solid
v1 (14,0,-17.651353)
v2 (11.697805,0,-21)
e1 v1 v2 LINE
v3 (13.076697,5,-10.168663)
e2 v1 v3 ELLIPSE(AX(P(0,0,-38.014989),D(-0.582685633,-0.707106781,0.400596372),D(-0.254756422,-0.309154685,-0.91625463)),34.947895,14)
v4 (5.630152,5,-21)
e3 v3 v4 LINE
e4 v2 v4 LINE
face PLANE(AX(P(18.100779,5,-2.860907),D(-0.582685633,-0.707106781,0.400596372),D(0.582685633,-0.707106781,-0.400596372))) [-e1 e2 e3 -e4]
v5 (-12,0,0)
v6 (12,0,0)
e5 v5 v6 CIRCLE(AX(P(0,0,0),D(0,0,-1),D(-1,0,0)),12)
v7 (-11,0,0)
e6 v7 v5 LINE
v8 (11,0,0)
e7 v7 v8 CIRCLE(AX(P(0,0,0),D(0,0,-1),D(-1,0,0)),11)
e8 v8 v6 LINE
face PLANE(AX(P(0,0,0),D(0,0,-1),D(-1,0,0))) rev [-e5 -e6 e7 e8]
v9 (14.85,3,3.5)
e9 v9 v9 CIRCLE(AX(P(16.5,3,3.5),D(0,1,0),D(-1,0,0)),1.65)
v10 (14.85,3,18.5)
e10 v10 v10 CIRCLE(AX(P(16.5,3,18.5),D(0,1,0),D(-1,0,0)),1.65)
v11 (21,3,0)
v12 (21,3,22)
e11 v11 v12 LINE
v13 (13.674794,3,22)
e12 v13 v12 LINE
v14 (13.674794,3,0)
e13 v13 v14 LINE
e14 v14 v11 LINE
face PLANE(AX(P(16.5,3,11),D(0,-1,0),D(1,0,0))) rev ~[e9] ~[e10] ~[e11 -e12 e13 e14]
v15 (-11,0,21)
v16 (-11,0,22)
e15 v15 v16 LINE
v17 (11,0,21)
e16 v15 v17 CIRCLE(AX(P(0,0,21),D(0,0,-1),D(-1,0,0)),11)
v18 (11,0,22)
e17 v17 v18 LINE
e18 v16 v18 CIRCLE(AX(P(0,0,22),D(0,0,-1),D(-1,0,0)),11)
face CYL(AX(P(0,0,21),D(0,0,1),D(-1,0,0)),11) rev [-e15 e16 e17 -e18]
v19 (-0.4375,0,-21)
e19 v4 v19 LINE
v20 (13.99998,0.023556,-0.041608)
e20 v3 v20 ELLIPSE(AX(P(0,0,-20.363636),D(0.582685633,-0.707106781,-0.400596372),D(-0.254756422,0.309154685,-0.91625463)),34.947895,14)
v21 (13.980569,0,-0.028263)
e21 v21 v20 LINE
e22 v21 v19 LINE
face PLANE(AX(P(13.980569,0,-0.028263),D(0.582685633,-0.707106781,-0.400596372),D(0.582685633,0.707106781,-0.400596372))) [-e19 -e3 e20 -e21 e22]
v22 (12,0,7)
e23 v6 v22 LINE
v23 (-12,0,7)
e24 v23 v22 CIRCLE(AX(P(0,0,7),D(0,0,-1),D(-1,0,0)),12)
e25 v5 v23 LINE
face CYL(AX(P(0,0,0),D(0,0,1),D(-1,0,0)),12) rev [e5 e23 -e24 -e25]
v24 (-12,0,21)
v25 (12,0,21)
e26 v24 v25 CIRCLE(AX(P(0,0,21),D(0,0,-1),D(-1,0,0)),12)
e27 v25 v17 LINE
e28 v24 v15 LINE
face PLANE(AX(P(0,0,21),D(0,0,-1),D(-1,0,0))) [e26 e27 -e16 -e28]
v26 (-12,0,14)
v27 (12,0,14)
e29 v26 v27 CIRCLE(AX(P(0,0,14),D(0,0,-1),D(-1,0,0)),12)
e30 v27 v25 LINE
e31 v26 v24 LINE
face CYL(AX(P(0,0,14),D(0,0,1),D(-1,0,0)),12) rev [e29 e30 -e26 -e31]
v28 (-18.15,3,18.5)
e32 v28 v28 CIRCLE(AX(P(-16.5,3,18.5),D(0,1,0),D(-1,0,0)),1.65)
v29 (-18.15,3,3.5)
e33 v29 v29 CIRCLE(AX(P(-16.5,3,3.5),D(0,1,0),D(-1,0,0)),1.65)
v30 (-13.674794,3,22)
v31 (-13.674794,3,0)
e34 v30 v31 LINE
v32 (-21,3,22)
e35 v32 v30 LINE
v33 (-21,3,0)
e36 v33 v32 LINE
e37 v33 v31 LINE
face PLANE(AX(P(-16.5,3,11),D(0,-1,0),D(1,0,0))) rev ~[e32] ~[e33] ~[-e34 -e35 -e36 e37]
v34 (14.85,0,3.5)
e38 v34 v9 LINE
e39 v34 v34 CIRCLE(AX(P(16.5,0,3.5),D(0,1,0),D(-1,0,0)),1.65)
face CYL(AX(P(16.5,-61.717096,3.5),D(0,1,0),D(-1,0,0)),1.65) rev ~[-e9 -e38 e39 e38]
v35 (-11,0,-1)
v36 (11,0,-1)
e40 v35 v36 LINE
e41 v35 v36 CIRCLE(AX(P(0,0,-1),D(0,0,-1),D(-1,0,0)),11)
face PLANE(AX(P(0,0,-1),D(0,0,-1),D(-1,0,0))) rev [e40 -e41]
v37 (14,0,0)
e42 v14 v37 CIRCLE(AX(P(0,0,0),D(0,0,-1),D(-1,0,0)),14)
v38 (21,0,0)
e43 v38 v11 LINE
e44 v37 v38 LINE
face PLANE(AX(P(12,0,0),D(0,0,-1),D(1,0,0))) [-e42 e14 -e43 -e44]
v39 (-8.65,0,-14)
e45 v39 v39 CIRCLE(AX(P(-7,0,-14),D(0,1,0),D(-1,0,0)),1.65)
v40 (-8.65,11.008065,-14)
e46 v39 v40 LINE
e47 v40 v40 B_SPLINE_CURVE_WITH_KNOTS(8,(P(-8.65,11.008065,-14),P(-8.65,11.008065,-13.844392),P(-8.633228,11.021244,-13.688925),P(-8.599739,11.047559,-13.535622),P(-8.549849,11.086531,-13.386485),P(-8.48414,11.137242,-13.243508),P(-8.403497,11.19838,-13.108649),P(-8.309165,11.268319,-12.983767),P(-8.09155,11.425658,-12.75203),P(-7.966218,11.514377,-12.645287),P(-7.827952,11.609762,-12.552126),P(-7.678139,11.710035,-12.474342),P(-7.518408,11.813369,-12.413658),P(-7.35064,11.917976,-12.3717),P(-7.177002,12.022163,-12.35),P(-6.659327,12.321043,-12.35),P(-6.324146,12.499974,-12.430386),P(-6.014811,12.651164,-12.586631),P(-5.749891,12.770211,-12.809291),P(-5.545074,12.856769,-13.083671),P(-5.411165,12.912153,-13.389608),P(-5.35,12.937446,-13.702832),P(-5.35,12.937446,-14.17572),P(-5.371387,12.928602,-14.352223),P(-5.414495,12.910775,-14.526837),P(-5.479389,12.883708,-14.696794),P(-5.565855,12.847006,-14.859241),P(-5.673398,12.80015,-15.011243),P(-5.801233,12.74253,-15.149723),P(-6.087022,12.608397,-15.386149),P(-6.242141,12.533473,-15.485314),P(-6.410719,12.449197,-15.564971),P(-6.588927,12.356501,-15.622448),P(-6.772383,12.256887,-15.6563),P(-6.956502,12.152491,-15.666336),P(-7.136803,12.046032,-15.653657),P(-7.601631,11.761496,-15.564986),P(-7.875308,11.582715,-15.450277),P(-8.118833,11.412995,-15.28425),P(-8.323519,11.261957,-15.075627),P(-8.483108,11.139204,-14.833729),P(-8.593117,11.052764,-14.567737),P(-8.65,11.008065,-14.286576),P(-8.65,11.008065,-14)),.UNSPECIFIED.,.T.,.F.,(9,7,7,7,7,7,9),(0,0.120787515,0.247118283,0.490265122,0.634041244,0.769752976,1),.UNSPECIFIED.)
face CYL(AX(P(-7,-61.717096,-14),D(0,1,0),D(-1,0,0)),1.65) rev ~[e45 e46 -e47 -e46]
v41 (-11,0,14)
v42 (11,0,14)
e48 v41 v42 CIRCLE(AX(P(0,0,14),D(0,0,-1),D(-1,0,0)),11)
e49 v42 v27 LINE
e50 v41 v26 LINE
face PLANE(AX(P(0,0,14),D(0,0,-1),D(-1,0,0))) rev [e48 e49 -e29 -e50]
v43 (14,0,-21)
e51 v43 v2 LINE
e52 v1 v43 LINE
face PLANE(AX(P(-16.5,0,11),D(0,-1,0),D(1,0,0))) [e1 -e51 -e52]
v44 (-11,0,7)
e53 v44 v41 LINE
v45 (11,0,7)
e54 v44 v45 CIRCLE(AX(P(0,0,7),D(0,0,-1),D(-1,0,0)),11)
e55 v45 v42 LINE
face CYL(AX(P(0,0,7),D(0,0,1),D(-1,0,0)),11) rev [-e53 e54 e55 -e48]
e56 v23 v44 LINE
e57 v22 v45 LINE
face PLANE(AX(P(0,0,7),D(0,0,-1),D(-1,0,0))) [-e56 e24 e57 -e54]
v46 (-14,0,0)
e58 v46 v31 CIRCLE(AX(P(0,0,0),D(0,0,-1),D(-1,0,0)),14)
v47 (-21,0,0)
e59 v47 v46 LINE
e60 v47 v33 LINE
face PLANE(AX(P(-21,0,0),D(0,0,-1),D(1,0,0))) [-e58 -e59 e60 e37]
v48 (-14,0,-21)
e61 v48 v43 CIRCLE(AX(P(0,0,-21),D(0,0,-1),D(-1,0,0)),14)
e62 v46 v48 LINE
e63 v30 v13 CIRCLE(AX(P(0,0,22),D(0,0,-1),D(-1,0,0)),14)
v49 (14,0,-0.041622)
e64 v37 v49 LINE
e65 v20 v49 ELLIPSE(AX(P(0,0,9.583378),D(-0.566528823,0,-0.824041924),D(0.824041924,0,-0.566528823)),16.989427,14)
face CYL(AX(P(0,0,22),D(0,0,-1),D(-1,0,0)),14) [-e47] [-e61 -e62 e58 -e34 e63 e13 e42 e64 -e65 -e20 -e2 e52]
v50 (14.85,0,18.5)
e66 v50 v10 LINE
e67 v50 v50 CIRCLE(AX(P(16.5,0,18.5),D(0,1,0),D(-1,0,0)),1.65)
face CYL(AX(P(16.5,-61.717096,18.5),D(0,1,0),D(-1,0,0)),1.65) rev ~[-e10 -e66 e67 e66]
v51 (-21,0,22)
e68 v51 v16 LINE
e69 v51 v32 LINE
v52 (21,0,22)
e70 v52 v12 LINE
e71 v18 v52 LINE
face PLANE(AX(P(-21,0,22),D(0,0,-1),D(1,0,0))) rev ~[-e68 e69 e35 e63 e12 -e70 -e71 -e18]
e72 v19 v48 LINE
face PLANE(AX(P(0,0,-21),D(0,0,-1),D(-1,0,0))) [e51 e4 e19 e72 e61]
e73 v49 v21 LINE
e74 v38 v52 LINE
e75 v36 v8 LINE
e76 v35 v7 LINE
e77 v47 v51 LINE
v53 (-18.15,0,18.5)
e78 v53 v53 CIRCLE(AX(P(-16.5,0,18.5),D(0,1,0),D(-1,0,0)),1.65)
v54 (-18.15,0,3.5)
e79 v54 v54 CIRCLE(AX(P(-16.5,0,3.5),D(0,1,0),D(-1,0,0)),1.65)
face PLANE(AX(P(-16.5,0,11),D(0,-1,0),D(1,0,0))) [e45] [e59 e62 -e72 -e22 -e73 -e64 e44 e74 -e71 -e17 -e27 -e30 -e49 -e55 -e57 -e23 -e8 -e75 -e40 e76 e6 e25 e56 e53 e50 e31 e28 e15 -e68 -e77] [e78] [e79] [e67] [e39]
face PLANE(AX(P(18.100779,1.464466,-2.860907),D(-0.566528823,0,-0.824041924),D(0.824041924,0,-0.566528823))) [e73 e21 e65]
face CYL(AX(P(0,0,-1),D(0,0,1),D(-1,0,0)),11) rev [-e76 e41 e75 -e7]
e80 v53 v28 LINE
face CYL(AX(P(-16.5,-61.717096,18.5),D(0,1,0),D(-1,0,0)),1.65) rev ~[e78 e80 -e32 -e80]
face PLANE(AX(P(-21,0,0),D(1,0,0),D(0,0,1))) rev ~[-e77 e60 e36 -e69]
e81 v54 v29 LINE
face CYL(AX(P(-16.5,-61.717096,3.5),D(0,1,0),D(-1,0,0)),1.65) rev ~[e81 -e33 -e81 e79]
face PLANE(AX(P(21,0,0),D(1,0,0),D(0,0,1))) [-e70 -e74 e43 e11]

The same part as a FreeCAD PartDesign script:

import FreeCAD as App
import Part
import Sketcher

doc = App.newDocument("Part")
body = doc.addObject("PartDesign::Body", "Body")

# Sketch on XZ plane
sketch1 = body.newObject("Sketcher::SketchObject", "Sketch")
sketch1.AttachmentSupport = (doc.getObject("XZ_Plane"), [""])
sketch1.MapMode = "FlatFace"
sketch1.addGeometry([
    Part.LineSegment(App.Vector(-12, 21, 0), App.Vector(-11, 21, 0)),  # 0
    Part.LineSegment(App.Vector(-11, 21, 0), App.Vector(-11, 22, 0)),  # 1
    Part.LineSegment(App.Vector(-11, 22, 0), App.Vector(-14, 22, 0)),  # 2
    Part.LineSegment(App.Vector(-14, 22, 0), App.Vector(-14, -21, 0)),  # 3
    Part.LineSegment(App.Vector(-14, -21, 0), App.Vector(0, -21, 0)),  # 4
    Part.LineSegment(App.Vector(0, -21, 0), App.Vector(0, -1, 0)),  # 5
    Part.LineSegment(App.Vector(0, -1, 0), App.Vector(-11, -1, 0)),  # 6
    Part.LineSegment(App.Vector(-11, -1, 0), App.Vector(-11, 0, 0)),  # 7
    Part.LineSegment(App.Vector(-11, 0, 0), App.Vector(-12, 0, 0)),  # 8
    Part.LineSegment(App.Vector(-12, 0, 0), App.Vector(-12, 7, 0)),  # 9
    Part.LineSegment(App.Vector(-12, 7, 0), App.Vector(-11, 7, 0)),  # 10
    Part.LineSegment(App.Vector(-11, 7, 0), App.Vector(-11, 14, 0)),  # 11
    Part.LineSegment(App.Vector(-11, 14, 0), App.Vector(-12, 14, 0)),  # 12
    Part.LineSegment(App.Vector(-12, 14, 0), App.Vector(-12, 21, 0)),  # 13
], False)
sketch1.addConstraint([
    Sketcher.Constraint("Coincident", 0, 2, 1, 1),
    Sketcher.Constraint("Coincident", 1, 2, 2, 1),
    Sketcher.Constraint("Coincident", 2, 2, 3, 1),
    Sketcher.Constraint("Coincident", 3, 2, 4, 1),
    Sketcher.Constraint("Coincident", 4, 2, 5, 1),
    Sketcher.Constraint("Coincident", 5, 2, 6, 1),
    Sketcher.Constraint("Coincident", 6, 2, 7, 1),
    Sketcher.Constraint("Coincident", 7, 2, 8, 1),
    Sketcher.Constraint("Coincident", 8, 2, 9, 1),
    Sketcher.Constraint("Coincident", 9, 2, 10, 1),
    Sketcher.Constraint("Coincident", 10, 2, 11, 1),
    Sketcher.Constraint("Coincident", 11, 2, 12, 1),
    Sketcher.Constraint("Coincident", 12, 2, 13, 1),
    Sketcher.Constraint("Coincident", 13, 2, 0, 1),
    Sketcher.Constraint("Horizontal", 0),
    Sketcher.Constraint("Vertical", 1),
    Sketcher.Constraint("Horizontal", 2),
    Sketcher.Constraint("Vertical", 3),
    Sketcher.Constraint("Horizontal", 4),
    Sketcher.Constraint("Vertical", 5),
    Sketcher.Constraint("Horizontal", 6),
    Sketcher.Constraint("Vertical", 7),
    Sketcher.Constraint("Horizontal", 8),
    Sketcher.Constraint("Vertical", 9),
    Sketcher.Constraint("Horizontal", 10),
    Sketcher.Constraint("Vertical", 11),
    Sketcher.Constraint("Horizontal", 12),
    Sketcher.Constraint("Vertical", 13),
    Sketcher.Constraint("PointOnObject", 4, 2, -2),
    Sketcher.Constraint("PointOnObject", 7, 2, -1),
    Sketcher.Constraint("Vertical", 1, 2, 6, 2),
    Sketcher.Constraint("Vertical", 7, 2, 10, 2),
    Sketcher.Constraint("Vertical", 9, 2, 12, 2),
    Sketcher.Constraint("Equal", 12, 1),
    Sketcher.Constraint("Equal", 1, 7),
    Sketcher.Constraint("Equal", 9, 11),
    Sketcher.Constraint("Equal", 11, 13),
    Sketcher.Constraint("DistanceX", 0, 1, 0, 2, 1.0),
    Sketcher.Constraint("DistanceX", 2, 2, 2, 1, 3.0),
    Sketcher.Constraint("DistanceX", 4, 1, 4, 2, 14.0),
    Sketcher.Constraint("DistanceY", 3, 2, 3, 1, 43.0),
    Sketcher.Constraint("DistanceY", 5, 1, 5, 2, 20.0),
])
revolution = body.newObject("PartDesign::Revolution", "Revolution")
revolution.Profile = sketch1
revolution.ReferenceAxis = (sketch1, ["V_Axis"])
revolution.Angle = 180
revolution.Reversed = True

# Sketch on XZ plane
sketch2 = body.newObject("Sketcher::SketchObject", "Sketch001")
sketch2.AttachmentSupport = (doc.getObject("XZ_Plane"), [""])
sketch2.MapMode = "FlatFace"
sketch2.addGeometry([
    Part.LineSegment(App.Vector(-21, 22, 0), App.Vector(-21, 0, 0)),  # 0
    Part.LineSegment(App.Vector(-21, 0, 0), App.Vector(-12, 0, 0)),  # 1
    Part.LineSegment(App.Vector(-12, 0, 0), App.Vector(-12, 22, 0)),  # 2
    Part.LineSegment(App.Vector(-12, 22, 0), App.Vector(-21, 22, 0)),  # 3
    Part.LineSegment(App.Vector(12, 22, 0), App.Vector(12, 0, 0)),  # 4
    Part.LineSegment(App.Vector(12, 0, 0), App.Vector(21, 0, 0)),  # 5
    Part.LineSegment(App.Vector(21, 0, 0), App.Vector(21, 22, 0)),  # 6
    Part.LineSegment(App.Vector(21, 22, 0), App.Vector(12, 22, 0)),  # 7
], False)
sketch2.addConstraint([
    Sketcher.Constraint("Coincident", 0, 2, 1, 1),
    Sketcher.Constraint("Coincident", 1, 2, 2, 1),
    Sketcher.Constraint("Coincident", 2, 2, 3, 1),
    Sketcher.Constraint("Coincident", 3, 2, 0, 1),
    Sketcher.Constraint("Coincident", 4, 2, 5, 1),
    Sketcher.Constraint("Coincident", 5, 2, 6, 1),
    Sketcher.Constraint("Coincident", 6, 2, 7, 1),
    Sketcher.Constraint("Coincident", 7, 2, 4, 1),
    Sketcher.Constraint("Vertical", 0),
    Sketcher.Constraint("Horizontal", 1),
    Sketcher.Constraint("Vertical", 2),
    Sketcher.Constraint("Horizontal", 3),
    Sketcher.Constraint("Vertical", 4),
    Sketcher.Constraint("Horizontal", 5),
    Sketcher.Constraint("Vertical", 6),
    Sketcher.Constraint("Horizontal", 7),
    Sketcher.Constraint("Symmetric", 1, 2, 4, 2, -1, 1),
    Sketcher.Constraint("Symmetric", 0, 2, 5, 2, -2),
    Sketcher.Constraint("Horizontal", 3, 2, 6, 2),
    Sketcher.Constraint("DistanceX", 1, 1, 1, 2, 9.0),
    Sketcher.Constraint("DistanceY", 0, 2, 0, 1, 22.0),
    Sketcher.Constraint("DistanceX", 0, 2, -1, 1, 21.0),
])
pad1 = body.newObject("PartDesign::Pad", "Pad")
pad1.Profile = sketch2
pad1.Length = 3
pad1.Reversed = True

# Sketch on XZ plane
sketch3 = body.newObject("Sketcher::SketchObject", "Sketch002")
sketch3.AttachmentSupport = (doc.getObject("XZ_Plane"), [""])
sketch3.MapMode = "FlatFace"
sketch3.addGeometry([
    Part.Circle(App.Vector(-16.5, 18.5, 0), App.Vector(0, 0, 1), 1.65),  # 0
    Part.Circle(App.Vector(-16.5, 3.5, 0), App.Vector(0, 0, 1), 1.65),  # 1
    Part.Circle(App.Vector(-7, -14, 0), App.Vector(0, 0, 1), 1.65),  # 2
    Part.Circle(App.Vector(16.5, 18.5, 0), App.Vector(0, 0, 1), 1.65),  # 3
    Part.Circle(App.Vector(16.5, 3.5, 0), App.Vector(0, 0, 1), 1.65),  # 4
], False)
sketch3.addConstraint([
    Sketcher.Constraint("Equal", 0, 1),
    Sketcher.Constraint("Equal", 1, 2),
    Sketcher.Constraint("Equal", 2, 3),
    Sketcher.Constraint("Equal", 3, 4),
    Sketcher.Constraint("Symmetric", 0, 3, 3, 3, -2),
    Sketcher.Constraint("Symmetric", 1, 3, 4, 3, -2),
    Sketcher.Constraint("Vertical", 0, 3, 1, 3),
    Sketcher.Constraint("Diameter", 0, 3.3),
    Sketcher.Constraint("DistanceX", 2, 3, -1, 1, 7.0),
    Sketcher.Constraint("DistanceY", 2, 3, -1, 1, 14.0),
    Sketcher.Constraint("DistanceY", 1, 3, 0, 3, 15.0),
    Sketcher.Constraint("DistanceX", 0, 3, 3, 3, 33.0),
    Sketcher.Constraint("DistanceY", -1, 1, 0, 3, 18.5),
])
doc.recompute()
hole = body.newObject("PartDesign::Hole", "Hole")
hole.Profile = sketch3
hole.ThreadType = "None"
hole.Diameter = 3.3
hole.DepthType = "ThroughAll"

# Sketch on an angled plane
sketch4 = body.newObject("Sketcher::SketchObject", "Sketch003")
sketch4.Placement = App.Placement(App.Vector(4.473938, 0, 6.507546), App.Rotation(App.Vector(0.824041924, 0, -0.566528823), App.Vector(0, -1, 0), App.Vector(-0.566528823, 0, -0.824041924), "ZXY"))
sketch4.addGeometry([
    Part.LineSegment(App.Vector(16.536587, -5, 0), App.Vector(21.536587, 0, 0)),
    Part.LineSegment(App.Vector(21.536587, 0, 0), App.Vector(11.536587, 0, 0)),
    Part.LineSegment(App.Vector(11.536587, 0, 0), App.Vector(16.536587, -5, 0)),
], False)
sketch4.addConstraint([
    Sketcher.Constraint("Coincident", 0, 2, 1, 1),
    Sketcher.Constraint("Coincident", 1, 2, 2, 1),
    Sketcher.Constraint("Coincident", 2, 2, 0, 1),
    Sketcher.Constraint("Horizontal", 1),
    Sketcher.Constraint("PointOnObject", 0, 2, -1),
    Sketcher.Constraint("Perpendicular", 0, 2),
    Sketcher.Constraint("Equal", 0, 2),
    Sketcher.Constraint("DistanceX", 1, 2, 1, 1, 10.0),
    Sketcher.Constraint("DistanceX", -1, 1, 0, 2, 21.536587),
])
pocket1 = body.newObject("PartDesign::Pocket", "Pocket")
pocket1.Profile = sketch4
pocket1.Length = 30
pocket1.Reversed = True

doc.recompute()
